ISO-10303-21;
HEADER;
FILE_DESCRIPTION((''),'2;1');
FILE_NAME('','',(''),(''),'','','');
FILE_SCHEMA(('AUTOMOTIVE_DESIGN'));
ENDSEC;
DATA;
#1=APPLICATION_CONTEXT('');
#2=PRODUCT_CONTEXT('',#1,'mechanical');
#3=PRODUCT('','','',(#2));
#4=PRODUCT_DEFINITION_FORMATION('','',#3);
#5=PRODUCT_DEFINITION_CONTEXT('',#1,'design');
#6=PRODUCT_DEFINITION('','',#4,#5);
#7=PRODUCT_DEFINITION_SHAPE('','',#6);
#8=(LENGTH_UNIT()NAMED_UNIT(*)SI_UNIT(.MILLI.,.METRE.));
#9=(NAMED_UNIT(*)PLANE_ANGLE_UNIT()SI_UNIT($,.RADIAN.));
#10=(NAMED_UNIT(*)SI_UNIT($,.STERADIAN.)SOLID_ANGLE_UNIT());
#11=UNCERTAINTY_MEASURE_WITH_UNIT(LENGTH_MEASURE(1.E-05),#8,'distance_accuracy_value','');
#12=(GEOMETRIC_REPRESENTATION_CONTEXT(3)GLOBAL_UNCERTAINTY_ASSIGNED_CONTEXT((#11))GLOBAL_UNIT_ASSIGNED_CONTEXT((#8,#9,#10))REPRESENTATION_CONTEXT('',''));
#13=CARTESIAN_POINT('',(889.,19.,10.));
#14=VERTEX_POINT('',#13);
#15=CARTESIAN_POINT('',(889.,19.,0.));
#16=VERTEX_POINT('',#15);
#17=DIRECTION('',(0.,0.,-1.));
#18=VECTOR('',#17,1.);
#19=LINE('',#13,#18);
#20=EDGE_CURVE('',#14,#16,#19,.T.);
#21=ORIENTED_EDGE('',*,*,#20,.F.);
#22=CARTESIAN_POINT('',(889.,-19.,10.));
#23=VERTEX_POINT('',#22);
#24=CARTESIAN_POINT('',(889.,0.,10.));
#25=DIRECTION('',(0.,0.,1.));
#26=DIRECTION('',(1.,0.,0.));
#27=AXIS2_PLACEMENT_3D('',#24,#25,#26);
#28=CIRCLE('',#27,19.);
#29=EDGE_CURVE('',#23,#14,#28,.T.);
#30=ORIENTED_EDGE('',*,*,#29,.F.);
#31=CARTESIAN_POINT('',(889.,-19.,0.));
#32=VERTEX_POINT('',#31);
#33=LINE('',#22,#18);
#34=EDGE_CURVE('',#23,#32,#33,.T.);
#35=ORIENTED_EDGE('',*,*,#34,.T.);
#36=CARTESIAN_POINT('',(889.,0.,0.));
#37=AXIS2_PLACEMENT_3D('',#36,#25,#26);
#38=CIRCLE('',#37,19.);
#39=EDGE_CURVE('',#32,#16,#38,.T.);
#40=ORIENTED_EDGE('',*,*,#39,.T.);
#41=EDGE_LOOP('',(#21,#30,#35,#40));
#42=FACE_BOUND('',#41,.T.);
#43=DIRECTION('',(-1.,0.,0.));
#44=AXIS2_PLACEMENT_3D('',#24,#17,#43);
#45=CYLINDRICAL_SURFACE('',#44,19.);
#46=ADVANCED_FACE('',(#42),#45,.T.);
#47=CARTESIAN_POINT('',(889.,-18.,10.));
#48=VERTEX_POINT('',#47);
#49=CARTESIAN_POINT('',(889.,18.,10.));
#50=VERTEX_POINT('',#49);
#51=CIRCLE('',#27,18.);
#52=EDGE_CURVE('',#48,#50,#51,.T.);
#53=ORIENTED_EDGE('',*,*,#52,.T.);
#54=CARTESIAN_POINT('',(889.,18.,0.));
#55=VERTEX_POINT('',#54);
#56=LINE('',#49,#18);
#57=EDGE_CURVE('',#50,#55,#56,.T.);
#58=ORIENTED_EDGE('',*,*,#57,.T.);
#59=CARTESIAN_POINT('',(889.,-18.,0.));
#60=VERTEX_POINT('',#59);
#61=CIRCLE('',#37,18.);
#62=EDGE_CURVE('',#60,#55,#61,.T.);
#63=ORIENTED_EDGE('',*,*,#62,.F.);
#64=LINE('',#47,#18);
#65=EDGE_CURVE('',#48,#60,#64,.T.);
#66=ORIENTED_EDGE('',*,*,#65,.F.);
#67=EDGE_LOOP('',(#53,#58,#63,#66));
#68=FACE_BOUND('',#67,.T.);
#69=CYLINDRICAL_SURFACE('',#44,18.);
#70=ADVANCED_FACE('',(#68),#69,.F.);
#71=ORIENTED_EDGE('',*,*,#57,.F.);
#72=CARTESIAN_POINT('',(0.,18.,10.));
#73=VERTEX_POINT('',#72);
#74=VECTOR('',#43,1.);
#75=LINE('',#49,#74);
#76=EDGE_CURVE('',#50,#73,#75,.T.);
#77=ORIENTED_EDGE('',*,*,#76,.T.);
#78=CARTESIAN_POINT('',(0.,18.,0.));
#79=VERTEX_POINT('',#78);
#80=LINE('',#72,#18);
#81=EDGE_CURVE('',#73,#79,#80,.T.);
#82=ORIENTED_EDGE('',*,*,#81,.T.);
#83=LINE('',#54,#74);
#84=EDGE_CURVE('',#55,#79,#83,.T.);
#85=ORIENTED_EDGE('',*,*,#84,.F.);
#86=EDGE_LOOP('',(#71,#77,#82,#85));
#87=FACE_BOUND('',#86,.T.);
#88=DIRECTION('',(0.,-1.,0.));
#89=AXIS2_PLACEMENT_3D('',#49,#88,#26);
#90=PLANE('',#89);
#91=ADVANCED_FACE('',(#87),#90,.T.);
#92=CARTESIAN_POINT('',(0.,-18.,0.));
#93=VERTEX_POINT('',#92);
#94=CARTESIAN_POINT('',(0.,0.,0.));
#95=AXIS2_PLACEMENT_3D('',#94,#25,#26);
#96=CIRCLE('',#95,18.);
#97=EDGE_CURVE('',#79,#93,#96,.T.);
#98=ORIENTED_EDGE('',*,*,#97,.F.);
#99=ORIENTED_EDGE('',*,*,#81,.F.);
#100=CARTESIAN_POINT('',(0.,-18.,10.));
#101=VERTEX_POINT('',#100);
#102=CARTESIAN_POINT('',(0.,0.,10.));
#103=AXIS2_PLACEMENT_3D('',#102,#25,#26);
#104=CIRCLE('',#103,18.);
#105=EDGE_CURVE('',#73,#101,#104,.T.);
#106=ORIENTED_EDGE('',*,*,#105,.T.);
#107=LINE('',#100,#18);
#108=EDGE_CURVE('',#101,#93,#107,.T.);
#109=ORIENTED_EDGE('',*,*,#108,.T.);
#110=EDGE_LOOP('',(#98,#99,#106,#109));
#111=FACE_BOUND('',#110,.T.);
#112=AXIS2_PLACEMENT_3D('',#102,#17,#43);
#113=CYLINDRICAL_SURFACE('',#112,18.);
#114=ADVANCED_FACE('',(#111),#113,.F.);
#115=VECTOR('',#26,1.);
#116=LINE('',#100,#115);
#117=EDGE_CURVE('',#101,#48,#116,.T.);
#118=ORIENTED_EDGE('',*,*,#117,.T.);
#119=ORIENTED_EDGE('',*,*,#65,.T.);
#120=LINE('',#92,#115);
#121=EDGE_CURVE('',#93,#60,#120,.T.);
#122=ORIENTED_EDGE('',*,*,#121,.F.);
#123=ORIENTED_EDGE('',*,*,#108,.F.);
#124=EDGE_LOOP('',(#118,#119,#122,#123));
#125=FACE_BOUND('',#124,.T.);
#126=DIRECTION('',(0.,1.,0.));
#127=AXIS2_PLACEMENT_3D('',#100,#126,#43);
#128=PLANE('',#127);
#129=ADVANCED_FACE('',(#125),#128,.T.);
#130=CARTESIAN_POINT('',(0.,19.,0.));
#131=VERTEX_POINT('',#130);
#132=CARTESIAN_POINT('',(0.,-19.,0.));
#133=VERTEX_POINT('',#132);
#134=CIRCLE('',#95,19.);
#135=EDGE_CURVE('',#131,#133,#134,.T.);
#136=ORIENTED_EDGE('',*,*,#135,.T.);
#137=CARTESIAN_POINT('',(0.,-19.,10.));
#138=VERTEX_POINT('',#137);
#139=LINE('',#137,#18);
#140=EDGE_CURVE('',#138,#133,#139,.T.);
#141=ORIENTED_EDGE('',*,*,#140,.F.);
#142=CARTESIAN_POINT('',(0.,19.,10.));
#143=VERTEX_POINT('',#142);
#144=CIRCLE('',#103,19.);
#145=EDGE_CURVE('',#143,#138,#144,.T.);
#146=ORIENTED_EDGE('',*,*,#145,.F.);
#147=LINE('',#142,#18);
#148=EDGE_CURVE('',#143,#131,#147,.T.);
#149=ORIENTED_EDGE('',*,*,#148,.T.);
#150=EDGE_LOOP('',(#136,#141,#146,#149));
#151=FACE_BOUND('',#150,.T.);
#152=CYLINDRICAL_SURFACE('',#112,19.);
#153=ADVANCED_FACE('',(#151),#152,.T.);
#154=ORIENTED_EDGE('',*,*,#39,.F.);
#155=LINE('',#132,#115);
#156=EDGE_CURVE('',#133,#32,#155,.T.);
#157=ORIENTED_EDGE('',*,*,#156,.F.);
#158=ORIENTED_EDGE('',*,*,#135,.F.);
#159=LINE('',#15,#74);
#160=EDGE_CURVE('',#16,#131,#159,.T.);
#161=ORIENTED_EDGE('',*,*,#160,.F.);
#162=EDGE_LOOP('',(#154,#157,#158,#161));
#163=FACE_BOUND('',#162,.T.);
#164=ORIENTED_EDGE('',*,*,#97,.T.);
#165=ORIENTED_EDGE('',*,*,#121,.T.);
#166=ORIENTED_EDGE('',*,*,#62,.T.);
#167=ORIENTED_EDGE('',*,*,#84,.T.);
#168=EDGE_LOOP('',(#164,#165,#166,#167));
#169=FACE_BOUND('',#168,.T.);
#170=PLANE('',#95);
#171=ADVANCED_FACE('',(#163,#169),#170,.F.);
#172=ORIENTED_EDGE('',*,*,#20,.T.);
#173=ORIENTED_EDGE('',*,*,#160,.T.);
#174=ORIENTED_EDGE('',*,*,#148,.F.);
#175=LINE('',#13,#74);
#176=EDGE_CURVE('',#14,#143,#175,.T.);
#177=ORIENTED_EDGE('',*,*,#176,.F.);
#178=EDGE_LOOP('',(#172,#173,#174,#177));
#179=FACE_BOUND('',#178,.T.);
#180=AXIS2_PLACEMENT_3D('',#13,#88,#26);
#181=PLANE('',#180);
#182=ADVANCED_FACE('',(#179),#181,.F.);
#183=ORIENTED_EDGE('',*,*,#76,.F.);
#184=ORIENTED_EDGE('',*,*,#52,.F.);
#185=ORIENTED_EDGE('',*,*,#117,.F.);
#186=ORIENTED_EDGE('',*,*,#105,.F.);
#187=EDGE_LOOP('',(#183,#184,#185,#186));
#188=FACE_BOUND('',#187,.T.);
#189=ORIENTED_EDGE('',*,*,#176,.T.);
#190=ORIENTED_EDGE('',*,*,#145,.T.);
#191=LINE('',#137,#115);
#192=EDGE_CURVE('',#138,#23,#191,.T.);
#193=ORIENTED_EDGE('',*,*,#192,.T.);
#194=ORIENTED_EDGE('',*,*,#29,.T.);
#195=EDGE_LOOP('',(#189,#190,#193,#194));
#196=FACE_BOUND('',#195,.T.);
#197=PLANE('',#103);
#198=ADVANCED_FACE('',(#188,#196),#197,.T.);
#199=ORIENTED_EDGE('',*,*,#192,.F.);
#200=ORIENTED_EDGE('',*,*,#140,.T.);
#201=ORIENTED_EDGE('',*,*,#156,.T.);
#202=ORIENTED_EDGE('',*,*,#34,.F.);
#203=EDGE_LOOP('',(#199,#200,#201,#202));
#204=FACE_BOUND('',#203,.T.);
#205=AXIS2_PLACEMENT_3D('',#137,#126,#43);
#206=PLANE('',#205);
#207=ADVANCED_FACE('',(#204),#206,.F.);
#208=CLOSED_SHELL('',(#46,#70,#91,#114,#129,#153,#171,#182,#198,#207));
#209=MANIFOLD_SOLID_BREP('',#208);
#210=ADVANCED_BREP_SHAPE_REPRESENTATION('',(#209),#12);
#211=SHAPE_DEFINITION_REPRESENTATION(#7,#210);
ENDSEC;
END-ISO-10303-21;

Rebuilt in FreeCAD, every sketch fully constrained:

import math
import FreeCAD as App
import Part
import Sketcher

doc = App.newDocument("Part")
body = doc.addObject("PartDesign::Body", "Body")

# Sketch on XY plane
sketch1 = body.newObject("Sketcher::SketchObject", "Sketch")
sketch1.AttachmentSupport = (doc.getObject("XY_Plane"), [""])
sketch1.MapMode = "FlatFace"
sketch1.addGeometry(Part.LineSegment(App.Vector(0, -19, 0), App.Vector(889, -19, 0)), False)
sketch1.addGeometry(Part.ArcOfCircle(Part.Circle(App.Vector(889, 0, 0), App.Vector(0, 0, 1), 19), math.radians(-90), math.radians(90)), False)
sketch1.addGeometry(Part.LineSegment(App.Vector(889, 19, 0), App.Vector(0, 19, 0)), False)
sketch1.addGeometry(Part.ArcOfCircle(Part.Circle(App.Vector(0, 0, 0), App.Vector(0, 0, 1), 19), math.radians(90), math.radians(270)), False)
sketch1.addGeometry(Part.LineSegment(App.Vector(0, 18, 0), App.Vector(889, 18, 0)), False)
sketch1.addGeometry(Part.ArcOfCircle(Part.Circle(App.Vector(889, 0, 0), App.Vector(0, 0, 1), 18), math.radians(-90), math.radians(90)), False)
sketch1.addGeometry(Part.LineSegment(App.Vector(889, -18, 0), App.Vector(0, -18, 0)), False)
sketch1.addGeometry(Part.ArcOfCircle(Part.Circle(App.Vector(0, 0, 0), App.Vector(0, 0, 1), 18), math.radians(90), math.radians(270)), False)
sketch1.addConstraint(Sketcher.Constraint("Tangent", 0, 2, 1, 1))
sketch1.addConstraint(Sketcher.Constraint("Tangent", 1, 2, 2, 1))
sketch1.addConstraint(Sketcher.Constraint("Tangent", 2, 2, 3, 1))
sketch1.addConstraint(Sketcher.Constraint("Tangent", 3, 2, 0, 1))
sketch1.addConstraint(Sketcher.Constraint("Tangent", 4, 2, 5, 2))
sketch1.addConstraint(Sketcher.Constraint("Tangent", 5, 1, 6, 1))
sketch1.addConstraint(Sketcher.Constraint("Tangent", 6, 2, 7, 2))
sketch1.addConstraint(Sketcher.Constraint("Tangent", 7, 1, 4, 1))
sketch1.addConstraint(Sketcher.Constraint("Horizontal", 0))
sketch1.addConstraint(Sketcher.Constraint("Horizontal", 2))
sketch1.addConstraint(Sketcher.Constraint("Horizontal", 4))
sketch1.addConstraint(Sketcher.Constraint("Horizontal", 6))
sketch1.addConstraint(Sketcher.Constraint("Coincident", 3, 3, -1, 1))
sketch1.addConstraint(Sketcher.Constraint("Coincident", 7, 3, -1, 1))
sketch1.addConstraint(Sketcher.Constraint("Vertical", 5, 3, 0, 2))
sketch1.addConstraint(Sketcher.Constraint("Radius", 1, 19.0))
sketch1.addConstraint(Sketcher.Constraint("Radius", 5, 18.0))
sketch1.addConstraint(Sketcher.Constraint("DistanceX", 0, 1, 0, 2, 889.0))
pad1 = body.newObject("PartDesign::Pad", "Pad")
pad1.Profile = sketch1
pad1.Length = 10

doc.recompute()
